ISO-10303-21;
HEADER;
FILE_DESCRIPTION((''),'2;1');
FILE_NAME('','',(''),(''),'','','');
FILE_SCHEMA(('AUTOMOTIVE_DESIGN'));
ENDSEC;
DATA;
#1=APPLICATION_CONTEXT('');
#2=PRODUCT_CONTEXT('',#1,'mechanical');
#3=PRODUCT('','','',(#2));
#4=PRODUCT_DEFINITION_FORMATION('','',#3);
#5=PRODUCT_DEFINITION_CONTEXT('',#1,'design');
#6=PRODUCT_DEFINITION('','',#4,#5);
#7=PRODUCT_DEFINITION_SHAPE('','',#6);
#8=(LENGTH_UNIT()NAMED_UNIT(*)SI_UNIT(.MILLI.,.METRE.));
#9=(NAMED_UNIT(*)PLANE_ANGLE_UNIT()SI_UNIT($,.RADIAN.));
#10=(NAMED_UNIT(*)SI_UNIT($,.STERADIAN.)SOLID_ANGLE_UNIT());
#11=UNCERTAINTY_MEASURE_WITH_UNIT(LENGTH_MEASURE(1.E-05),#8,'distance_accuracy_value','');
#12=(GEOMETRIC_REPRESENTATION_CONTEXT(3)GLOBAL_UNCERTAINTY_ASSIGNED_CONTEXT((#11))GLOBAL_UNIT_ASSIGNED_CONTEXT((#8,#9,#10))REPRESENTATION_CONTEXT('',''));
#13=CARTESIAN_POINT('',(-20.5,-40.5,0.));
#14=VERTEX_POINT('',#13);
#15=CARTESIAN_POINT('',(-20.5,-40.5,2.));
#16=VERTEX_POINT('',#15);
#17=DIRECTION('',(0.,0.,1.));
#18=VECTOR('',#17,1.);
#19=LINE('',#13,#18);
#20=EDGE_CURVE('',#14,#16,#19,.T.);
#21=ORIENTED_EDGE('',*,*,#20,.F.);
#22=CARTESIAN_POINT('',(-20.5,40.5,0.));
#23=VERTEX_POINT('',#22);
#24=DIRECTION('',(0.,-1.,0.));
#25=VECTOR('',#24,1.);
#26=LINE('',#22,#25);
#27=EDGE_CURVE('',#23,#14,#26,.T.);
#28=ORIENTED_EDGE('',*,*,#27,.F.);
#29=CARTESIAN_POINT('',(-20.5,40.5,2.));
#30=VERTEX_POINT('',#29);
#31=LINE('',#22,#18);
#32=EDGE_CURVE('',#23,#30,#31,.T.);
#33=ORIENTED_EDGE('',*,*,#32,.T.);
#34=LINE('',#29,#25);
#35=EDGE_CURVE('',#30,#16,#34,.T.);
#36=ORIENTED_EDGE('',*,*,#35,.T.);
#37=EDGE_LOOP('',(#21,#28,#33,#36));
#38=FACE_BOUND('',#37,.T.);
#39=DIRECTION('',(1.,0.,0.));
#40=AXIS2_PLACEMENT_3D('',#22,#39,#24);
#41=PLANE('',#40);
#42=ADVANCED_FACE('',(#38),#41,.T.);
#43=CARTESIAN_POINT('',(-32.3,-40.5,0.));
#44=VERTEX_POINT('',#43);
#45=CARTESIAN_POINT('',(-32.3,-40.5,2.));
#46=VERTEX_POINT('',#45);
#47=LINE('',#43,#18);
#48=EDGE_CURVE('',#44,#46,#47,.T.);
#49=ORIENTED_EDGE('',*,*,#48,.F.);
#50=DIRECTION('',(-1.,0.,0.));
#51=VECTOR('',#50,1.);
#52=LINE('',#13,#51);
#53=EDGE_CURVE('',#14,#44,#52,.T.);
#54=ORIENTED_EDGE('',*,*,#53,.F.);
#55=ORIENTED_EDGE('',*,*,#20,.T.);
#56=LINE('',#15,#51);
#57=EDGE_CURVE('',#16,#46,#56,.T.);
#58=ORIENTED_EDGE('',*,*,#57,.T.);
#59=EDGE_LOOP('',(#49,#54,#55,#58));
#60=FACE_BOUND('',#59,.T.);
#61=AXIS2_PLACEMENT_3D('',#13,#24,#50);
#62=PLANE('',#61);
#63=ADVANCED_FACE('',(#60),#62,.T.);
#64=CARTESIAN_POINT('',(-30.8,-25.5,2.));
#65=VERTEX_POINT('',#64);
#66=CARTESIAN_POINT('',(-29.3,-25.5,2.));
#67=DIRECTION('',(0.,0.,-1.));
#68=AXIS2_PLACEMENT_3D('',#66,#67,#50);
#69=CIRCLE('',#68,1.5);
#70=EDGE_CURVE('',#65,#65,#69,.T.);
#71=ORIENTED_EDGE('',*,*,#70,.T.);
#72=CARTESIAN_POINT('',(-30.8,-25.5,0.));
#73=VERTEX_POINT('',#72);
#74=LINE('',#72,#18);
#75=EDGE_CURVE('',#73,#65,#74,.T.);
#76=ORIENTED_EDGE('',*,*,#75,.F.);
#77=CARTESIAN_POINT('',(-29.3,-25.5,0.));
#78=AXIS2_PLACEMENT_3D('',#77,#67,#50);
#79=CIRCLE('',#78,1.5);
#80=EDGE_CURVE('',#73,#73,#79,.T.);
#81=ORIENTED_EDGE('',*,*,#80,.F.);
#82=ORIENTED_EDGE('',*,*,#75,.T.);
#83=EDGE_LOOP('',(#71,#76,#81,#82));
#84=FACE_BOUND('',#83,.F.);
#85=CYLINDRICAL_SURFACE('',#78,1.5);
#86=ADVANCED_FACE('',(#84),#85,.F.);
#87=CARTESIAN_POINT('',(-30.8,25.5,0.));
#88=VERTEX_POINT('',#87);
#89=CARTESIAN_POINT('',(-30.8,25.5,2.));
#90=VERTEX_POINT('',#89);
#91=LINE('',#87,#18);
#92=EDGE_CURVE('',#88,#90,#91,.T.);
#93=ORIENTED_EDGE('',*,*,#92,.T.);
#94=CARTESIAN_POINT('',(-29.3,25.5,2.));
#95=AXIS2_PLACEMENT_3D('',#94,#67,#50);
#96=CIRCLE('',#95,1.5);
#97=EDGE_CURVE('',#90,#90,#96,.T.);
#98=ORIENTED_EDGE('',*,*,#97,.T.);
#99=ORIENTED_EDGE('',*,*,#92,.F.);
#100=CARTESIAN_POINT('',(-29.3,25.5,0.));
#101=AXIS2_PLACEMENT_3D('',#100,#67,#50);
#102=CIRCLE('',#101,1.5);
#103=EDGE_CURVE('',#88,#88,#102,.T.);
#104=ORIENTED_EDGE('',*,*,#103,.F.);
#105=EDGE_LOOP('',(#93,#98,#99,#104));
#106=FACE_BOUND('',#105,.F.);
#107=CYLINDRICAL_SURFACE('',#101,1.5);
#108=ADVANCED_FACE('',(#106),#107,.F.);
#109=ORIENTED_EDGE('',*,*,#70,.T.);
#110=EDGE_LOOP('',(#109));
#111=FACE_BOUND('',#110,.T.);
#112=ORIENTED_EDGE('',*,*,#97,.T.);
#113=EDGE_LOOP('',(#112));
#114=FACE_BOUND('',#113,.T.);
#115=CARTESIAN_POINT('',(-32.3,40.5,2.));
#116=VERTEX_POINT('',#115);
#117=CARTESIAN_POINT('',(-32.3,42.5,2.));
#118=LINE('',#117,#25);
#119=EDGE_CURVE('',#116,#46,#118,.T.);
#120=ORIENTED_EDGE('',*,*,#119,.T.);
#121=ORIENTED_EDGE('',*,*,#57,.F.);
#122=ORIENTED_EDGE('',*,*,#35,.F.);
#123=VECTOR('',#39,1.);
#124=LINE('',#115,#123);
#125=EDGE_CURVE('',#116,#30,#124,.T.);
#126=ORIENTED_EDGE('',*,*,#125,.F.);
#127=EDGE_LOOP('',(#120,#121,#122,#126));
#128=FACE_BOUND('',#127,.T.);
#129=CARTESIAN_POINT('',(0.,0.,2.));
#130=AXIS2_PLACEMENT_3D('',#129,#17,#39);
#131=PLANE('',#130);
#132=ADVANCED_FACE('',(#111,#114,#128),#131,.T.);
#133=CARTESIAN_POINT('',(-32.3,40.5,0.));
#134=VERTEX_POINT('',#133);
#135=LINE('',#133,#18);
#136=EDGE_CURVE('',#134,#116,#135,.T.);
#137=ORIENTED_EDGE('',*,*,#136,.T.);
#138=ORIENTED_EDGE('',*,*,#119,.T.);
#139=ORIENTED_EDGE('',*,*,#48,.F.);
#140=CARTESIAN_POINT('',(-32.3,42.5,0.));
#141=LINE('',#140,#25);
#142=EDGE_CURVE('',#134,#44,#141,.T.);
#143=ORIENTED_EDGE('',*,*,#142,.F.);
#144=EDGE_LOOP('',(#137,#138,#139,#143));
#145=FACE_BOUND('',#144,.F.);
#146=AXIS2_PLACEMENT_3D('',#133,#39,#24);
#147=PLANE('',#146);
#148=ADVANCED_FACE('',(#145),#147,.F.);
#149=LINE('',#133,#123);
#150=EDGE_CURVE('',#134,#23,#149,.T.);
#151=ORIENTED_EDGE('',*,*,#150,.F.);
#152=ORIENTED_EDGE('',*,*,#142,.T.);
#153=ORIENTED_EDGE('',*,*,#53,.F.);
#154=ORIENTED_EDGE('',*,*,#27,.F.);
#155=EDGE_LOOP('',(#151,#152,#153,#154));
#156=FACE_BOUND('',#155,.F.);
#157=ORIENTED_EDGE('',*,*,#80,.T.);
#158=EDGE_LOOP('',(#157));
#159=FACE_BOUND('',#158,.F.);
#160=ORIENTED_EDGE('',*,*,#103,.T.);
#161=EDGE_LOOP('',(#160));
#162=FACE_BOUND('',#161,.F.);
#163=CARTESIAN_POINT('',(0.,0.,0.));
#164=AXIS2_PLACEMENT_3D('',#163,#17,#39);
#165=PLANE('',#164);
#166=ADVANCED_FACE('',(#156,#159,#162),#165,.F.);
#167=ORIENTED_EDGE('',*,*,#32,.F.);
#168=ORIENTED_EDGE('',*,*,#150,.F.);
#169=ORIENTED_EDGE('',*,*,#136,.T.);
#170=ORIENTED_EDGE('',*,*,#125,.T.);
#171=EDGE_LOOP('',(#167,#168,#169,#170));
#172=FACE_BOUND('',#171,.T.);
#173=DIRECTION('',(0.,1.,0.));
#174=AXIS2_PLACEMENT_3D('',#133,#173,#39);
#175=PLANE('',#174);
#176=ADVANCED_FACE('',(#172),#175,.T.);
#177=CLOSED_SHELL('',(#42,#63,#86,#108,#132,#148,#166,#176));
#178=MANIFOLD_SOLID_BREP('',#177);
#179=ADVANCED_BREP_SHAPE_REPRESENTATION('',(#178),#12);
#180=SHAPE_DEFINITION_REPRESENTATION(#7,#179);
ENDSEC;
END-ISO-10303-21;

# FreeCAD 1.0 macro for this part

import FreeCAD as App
import Part
import Sketcher
from FreeCAD import Vector
Q = App.Units.Quantity

doc = App.newDocument("Part")
params = doc.addObject("Spreadsheet::Sheet", "Params")
for row, (alias, value) in enumerate([
    ("sketch1_height", "81 mm"),
    ("sketch1_width", "11.8 mm"),
    ("pad1_length", "2 mm"),
    ("sketch2_diameter", "3 mm"),
    ("pocket1_length", "2 mm"),
], start=1):
    params.set(f"A{row}", alias)
    params.set(f"B{row}", "=" + value)
    params.setAlias(f"B{row}", alias)

body = doc.addObject("PartDesign::Body", "Body")

sketch1 = doc.addObject("Sketcher::SketchObject", "Sketch")
body.addObject(sketch1)
sketch1.AttachmentSupport = (doc.XY_Plane, [""])
sketch1.MapMode = "FlatFace"
sketch1.addGeometry(Part.LineSegment(Vector(-20, -40, 0), Vector(-20, 40, 0)), False)
sketch1.addGeometry(Part.LineSegment(Vector(-20, 40, 0), Vector(-32, 40, 0)), False)
sketch1.addGeometry(Part.LineSegment(Vector(-32, 40, 0), Vector(-32, -40, 0)), False)
sketch1.addGeometry(Part.LineSegment(Vector(-32, -40, 0), Vector(-20, -40, 0)), False)
sketch1.addConstraint(Sketcher.Constraint("Coincident", 0, 2, 1, 1))
sketch1.addConstraint(Sketcher.Constraint("Coincident", 1, 2, 2, 1))
sketch1.addConstraint(Sketcher.Constraint("Coincident", 2, 2, 3, 1))
sketch1.addConstraint(Sketcher.Constraint("Coincident", 3, 2, 0, 1))
sketch1.addConstraint(Sketcher.Constraint("Vertical", 0))
sketch1.addConstraint(Sketcher.Constraint("Horizontal", 1))
sketch1.addConstraint(Sketcher.Constraint("Vertical", 2))
sketch1.addConstraint(Sketcher.Constraint("Horizontal", 3))
sketch1.addConstraint(Sketcher.Constraint("DistanceY", 0, 1, 0, 2, Q("81 mm")))
sketch1.addConstraint(Sketcher.Constraint("DistanceX", 1, 2, 1, 1, Q("11.8 mm")))
sketch1.addConstraint(Sketcher.Constraint("DistanceX", 0, 2, -1, 1, Q("20.5 mm")))
sketch1.addConstraint(Sketcher.Constraint("DistanceY", -1, 1, 0, 2, Q("40.5 mm")))
sketch1.setExpression("Constraints[8]", "Params.sketch1_height")
sketch1.setExpression("Constraints[9]", "Params.sketch1_width")
pad1 = doc.addObject("PartDesign::Pad", "Pad")
body.addObject(pad1)
pad1.Profile = sketch1
pad1.setExpression("Length", "Params.pad1_length")

sketch2 = doc.addObject("Sketcher::SketchObject", "Sketch001")
body.addObject(sketch2)
sketch2.AttachmentSupport = (doc.XY_Plane, [""])
sketch2.MapMode = "FlatFace"
sketch2.addGeometry(Part.Circle(Vector(-29.3, 25.5, 0), Vector(0, 0, 1), 1.5), False)
sketch2.addGeometry(Part.Circle(Vector(-29.3, -25.5, 0), Vector(0, 0, 1), 1.5), False)
sketch2.addConstraint(Sketcher.Constraint("Equal", 0, 1))
sketch2.addConstraint(Sketcher.Constraint("Symmetric", 0, 3, 1, 3, -1))
sketch2.addConstraint(Sketcher.Constraint("Diameter", 0, Q("3 mm")))
sketch2.addConstraint(Sketcher.Constraint("DistanceY", 1, 3, 0, 3, Q("51 mm")))
sketch2.addConstraint(Sketcher.Constraint("DistanceX", 0, 3, -1, 1, Q("29.3 mm")))
sketch2.setExpression("Constraints[2]", "Params.sketch2_diameter")
pocket1 = doc.addObject("PartDesign::Pocket", "Pocket")
body.addObject(pocket1)
pocket1.Profile = sketch2
pocket1.setExpression("Length", "Params.pocket1_length")
pocket1.Reversed = True

doc.recompute()
